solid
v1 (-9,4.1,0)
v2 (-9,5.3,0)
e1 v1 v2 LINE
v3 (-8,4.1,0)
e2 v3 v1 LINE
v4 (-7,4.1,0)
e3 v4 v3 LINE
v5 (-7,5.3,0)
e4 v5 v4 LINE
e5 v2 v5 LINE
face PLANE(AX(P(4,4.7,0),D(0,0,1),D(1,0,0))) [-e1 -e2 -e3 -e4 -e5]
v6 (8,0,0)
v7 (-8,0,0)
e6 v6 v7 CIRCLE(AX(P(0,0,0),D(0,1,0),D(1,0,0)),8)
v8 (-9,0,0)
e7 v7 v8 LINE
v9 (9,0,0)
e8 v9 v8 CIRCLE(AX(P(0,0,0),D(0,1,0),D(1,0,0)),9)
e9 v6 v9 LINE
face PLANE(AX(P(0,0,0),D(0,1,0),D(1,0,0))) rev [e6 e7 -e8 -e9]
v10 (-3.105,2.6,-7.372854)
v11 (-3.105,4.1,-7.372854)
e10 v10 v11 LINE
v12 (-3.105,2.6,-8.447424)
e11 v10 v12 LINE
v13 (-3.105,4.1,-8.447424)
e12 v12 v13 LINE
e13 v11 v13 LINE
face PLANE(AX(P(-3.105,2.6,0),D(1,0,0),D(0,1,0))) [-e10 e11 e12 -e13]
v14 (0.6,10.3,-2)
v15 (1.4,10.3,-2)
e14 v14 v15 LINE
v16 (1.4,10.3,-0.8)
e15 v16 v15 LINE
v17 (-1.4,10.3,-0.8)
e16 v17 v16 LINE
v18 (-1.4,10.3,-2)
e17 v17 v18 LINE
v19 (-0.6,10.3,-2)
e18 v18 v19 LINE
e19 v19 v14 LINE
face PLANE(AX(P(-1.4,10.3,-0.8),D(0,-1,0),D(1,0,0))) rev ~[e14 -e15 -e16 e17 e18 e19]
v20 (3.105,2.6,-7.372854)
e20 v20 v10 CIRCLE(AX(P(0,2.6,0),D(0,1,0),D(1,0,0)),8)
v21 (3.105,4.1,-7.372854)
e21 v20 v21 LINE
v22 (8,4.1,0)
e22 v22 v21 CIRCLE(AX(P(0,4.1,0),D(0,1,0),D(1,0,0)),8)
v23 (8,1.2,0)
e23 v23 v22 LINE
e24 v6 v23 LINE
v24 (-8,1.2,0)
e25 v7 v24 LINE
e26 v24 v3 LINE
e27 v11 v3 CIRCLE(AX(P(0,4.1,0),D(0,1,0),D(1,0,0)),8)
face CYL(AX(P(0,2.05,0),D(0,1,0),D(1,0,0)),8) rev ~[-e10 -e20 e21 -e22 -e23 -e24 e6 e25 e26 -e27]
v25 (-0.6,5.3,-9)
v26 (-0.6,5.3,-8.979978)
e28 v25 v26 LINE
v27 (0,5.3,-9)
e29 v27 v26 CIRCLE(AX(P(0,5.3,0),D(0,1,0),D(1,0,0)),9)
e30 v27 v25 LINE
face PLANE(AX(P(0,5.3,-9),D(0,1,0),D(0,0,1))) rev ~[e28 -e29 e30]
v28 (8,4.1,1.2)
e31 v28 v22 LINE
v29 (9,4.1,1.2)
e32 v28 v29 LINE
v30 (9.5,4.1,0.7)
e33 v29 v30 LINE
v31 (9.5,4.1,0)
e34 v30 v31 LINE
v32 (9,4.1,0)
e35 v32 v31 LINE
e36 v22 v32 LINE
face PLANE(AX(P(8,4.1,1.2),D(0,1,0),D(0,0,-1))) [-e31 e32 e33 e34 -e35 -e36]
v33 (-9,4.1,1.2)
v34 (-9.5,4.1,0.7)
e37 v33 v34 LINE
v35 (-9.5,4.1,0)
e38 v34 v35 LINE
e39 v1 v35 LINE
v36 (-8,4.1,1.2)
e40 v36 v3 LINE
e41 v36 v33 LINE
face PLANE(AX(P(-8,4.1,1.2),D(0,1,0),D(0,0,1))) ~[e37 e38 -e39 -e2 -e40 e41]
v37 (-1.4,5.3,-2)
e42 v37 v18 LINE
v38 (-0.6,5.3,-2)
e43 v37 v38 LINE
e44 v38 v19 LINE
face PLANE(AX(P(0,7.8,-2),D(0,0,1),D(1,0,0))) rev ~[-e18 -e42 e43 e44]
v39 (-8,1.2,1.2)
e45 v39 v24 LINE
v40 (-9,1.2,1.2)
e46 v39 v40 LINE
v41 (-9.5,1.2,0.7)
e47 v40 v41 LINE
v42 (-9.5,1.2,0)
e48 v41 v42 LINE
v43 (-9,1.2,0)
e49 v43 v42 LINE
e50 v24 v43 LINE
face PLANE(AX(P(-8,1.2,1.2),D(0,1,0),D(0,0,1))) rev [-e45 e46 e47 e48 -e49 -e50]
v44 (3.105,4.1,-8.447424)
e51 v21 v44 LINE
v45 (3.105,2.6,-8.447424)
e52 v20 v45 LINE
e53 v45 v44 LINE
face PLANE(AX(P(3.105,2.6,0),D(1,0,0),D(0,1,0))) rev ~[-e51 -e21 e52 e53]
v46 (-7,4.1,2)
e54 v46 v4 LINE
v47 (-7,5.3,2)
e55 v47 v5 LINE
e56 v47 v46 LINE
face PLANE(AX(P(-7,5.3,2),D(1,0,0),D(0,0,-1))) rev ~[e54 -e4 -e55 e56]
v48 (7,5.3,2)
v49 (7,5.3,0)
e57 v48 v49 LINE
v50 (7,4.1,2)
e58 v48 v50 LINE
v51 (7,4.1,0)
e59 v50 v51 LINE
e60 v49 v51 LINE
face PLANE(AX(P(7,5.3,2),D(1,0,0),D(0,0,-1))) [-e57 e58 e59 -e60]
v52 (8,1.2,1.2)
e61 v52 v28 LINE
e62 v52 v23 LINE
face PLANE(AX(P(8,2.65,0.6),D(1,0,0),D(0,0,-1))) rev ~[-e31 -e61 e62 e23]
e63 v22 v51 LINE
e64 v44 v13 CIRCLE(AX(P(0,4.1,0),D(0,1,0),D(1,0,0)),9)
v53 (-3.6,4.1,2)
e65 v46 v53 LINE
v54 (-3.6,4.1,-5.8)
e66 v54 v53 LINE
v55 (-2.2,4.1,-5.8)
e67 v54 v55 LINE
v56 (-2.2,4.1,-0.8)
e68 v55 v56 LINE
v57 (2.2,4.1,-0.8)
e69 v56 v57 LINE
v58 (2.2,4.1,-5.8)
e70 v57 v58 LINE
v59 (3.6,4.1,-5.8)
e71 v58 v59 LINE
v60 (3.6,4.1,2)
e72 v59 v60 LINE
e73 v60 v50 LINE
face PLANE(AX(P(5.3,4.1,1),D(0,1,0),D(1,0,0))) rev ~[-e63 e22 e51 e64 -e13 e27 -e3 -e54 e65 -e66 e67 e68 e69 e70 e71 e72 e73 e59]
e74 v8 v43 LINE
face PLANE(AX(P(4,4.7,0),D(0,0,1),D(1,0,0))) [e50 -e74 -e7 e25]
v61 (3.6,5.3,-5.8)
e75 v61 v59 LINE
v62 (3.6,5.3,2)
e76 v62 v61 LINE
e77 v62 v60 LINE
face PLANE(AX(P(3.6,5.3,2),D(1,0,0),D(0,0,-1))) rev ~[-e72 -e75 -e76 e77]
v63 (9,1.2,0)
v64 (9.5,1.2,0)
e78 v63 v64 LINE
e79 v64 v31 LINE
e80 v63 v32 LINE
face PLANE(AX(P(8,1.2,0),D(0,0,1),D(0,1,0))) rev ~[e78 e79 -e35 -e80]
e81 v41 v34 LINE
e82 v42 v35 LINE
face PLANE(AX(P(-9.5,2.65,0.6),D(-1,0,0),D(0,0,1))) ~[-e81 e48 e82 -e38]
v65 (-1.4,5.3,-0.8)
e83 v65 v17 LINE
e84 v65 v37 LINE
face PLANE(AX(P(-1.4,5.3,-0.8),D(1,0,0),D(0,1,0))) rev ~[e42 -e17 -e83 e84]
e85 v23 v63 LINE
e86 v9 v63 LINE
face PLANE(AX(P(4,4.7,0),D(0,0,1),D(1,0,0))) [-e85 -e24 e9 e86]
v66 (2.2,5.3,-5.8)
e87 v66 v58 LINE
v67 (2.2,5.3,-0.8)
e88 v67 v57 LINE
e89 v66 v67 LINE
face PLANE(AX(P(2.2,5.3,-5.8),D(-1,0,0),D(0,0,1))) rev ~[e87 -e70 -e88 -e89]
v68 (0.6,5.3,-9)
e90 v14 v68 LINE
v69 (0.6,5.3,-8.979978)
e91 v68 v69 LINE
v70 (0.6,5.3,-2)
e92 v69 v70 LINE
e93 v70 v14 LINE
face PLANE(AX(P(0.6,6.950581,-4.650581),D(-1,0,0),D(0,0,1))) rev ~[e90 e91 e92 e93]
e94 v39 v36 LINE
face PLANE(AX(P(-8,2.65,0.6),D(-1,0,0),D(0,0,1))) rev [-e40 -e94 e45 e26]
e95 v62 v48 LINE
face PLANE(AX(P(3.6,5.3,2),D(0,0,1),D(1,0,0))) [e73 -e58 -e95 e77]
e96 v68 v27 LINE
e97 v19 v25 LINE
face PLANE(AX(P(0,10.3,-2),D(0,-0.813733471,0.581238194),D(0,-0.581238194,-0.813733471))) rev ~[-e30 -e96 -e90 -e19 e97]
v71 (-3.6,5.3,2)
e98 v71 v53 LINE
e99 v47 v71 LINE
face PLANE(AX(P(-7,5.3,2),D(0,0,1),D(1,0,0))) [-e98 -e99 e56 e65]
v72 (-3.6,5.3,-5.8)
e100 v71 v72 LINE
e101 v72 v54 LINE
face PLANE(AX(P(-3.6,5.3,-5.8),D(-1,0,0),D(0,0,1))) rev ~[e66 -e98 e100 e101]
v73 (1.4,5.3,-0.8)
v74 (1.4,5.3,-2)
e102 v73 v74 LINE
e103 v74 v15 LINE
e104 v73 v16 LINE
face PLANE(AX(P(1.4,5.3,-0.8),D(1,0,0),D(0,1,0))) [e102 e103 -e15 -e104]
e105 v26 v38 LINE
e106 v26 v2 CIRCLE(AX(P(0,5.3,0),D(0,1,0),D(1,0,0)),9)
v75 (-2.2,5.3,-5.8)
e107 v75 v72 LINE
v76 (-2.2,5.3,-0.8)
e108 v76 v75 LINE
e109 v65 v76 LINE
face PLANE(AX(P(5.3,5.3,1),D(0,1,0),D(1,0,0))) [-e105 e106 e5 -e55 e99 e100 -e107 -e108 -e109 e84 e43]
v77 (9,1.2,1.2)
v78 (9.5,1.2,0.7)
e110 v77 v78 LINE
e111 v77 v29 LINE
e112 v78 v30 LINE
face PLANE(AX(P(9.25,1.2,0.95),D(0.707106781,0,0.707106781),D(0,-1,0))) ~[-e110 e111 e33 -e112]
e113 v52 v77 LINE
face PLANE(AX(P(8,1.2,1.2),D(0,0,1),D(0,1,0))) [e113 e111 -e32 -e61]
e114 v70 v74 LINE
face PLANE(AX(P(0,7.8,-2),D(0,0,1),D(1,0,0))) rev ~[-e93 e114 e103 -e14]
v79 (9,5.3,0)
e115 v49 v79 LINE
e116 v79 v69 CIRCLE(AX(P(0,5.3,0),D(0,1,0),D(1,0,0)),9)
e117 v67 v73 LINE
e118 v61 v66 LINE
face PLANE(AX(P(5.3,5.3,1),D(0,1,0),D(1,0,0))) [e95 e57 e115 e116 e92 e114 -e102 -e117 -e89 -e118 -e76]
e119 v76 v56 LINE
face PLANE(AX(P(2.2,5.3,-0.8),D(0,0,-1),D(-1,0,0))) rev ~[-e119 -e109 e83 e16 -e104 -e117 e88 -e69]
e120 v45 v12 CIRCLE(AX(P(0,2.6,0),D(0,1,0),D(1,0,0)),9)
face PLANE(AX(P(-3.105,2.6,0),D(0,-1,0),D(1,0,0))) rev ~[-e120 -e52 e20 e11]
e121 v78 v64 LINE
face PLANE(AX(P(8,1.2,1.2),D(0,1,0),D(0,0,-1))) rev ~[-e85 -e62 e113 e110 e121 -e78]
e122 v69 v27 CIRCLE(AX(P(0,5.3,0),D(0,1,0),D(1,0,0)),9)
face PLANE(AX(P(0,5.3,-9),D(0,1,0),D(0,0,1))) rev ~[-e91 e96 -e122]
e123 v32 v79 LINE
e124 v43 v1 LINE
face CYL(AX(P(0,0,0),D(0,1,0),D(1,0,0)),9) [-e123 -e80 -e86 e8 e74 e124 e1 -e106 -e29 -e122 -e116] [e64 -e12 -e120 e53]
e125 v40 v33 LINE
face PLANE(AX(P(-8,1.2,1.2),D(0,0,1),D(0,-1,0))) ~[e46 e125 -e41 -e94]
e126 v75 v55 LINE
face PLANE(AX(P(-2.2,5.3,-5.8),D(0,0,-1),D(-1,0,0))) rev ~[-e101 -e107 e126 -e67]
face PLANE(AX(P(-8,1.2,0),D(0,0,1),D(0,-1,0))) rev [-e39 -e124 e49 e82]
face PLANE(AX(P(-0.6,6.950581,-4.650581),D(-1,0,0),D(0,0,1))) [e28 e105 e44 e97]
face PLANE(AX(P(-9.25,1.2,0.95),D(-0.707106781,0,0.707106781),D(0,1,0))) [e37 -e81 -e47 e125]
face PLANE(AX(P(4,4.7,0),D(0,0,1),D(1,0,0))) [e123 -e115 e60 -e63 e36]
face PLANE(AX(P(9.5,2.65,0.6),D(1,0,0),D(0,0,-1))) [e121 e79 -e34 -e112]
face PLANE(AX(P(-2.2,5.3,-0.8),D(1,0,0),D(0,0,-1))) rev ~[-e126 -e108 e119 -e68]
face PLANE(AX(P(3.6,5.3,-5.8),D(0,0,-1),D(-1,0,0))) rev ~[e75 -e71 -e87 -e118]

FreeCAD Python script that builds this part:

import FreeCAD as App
import Part
import Sketcher
from FreeCAD import Vector


def edges_at(feature, points):
    """Names of the edges that pass closest to the given points."""
    edges = feature.Shape.Edges
    near = lambda p: min(range(len(edges)), key=lambda i: edges[i].distToShape(Part.Vertex(*p))[0])
    return sorted({f"Edge{near(p) + 1}" for p in points})

doc = App.newDocument("Part")
body = doc.addObject("PartDesign::Body", "Body")

sketch1 = body.newObject("Sketcher::SketchObject", "Sketch")
sketch1.AttachmentSupport = (doc.getObject("XY_Plane"), [""])
sketch1.MapMode = "FlatFace"
sketch1.addGeometry([
    Part.LineSegment(Vector(0, 5.3, 0), Vector(0, 4.1, 0)),
    Part.LineSegment(Vector(0, 4.1, 0), Vector(8, 4.1, 0)),
    Part.LineSegment(Vector(8, 4.1, 0), Vector(8, 0, 0)),
    Part.LineSegment(Vector(8, 0, 0), Vector(9, 0, 0)),
    Part.LineSegment(Vector(9, 0, 0), Vector(9, 5.3, 0)),
    Part.LineSegment(Vector(9, 5.3, 0), Vector(0, 5.3, 0)),
], False)
sketch1.addConstraint([
    Sketcher.Constraint("Coincident", 0, 2, 1, 1),
    Sketcher.Constraint("Coincident", 1, 2, 2, 1),
    Sketcher.Constraint("Coincident", 2, 2, 3, 1),
    Sketcher.Constraint("Coincident", 3, 2, 4, 1),
    Sketcher.Constraint("Coincident", 4, 2, 5, 1),
    Sketcher.Constraint("Coincident", 5, 2, 0, 1),
    Sketcher.Constraint("Vertical", 0),
    Sketcher.Constraint("Horizontal", 1),
    Sketcher.Constraint("Vertical", 2),
    Sketcher.Constraint("Horizontal", 3),
    Sketcher.Constraint("Vertical", 4),
    Sketcher.Constraint("Horizontal", 5),
    Sketcher.Constraint("PointOnObject", 0, 2, -2),
    Sketcher.Constraint("PointOnObject", 2, 2, -1),
    Sketcher.Constraint("DistanceX", 1, 1, 1, 2, 8.0),
    Sketcher.Constraint("DistanceX", 3, 1, 3, 2, 1.0),
    Sketcher.Constraint("DistanceY", 0, 2, 0, 1, 1.2),
    Sketcher.Constraint("DistanceY", 2, 2, 2, 1, 4.1),
])
revolution = body.newObject("PartDesign::Revolution", "Revolution")
revolution.Profile = sketch1
revolution.ReferenceAxis = (sketch1, ["V_Axis"])
revolution.Angle = 180

sketch2 = body.newObject("Sketcher::SketchObject", "Sketch001")
sketch2.AttachmentSupport = (doc.getObject("XY_Plane"), [""])
sketch2.MapMode = "FlatFace"
sketch2.addGeometry([
    Part.LineSegment(Vector(-3.1, 4.1, 0), Vector(-3.1, 2.6, 0)),
    Part.LineSegment(Vector(-3.1, 2.6, 0), Vector(3.1, 2.6, 0)),
    Part.LineSegment(Vector(3.1, 2.6, 0), Vector(3.1, 4.1, 0)),
    Part.LineSegment(Vector(3.1, 4.1, 0), Vector(-3.1, 4.1, 0)),
], False)
sketch2.addConstraint([
    Sketcher.Constraint("Coincident", 0, 2, 1, 1),
    Sketcher.Constraint("Coincident", 1, 2, 2, 1),
    Sketcher.Constraint("Coincident", 2, 2, 3, 1),
    Sketcher.Constraint("Coincident", 3, 2, 0, 1),
    Sketcher.Constraint("Vertical", 0),
    Sketcher.Constraint("Horizontal", 1),
    Sketcher.Constraint("Vertical", 2),
    Sketcher.Constraint("Horizontal", 3),
    Sketcher.Constraint("DistanceY", 0, 2, 0, 1, 1.5),
    Sketcher.Constraint("DistanceX", 1, 1, 1, 2, 6.21),
    Sketcher.Constraint("DistanceY", -1, 1, 0, 2, 2.6),
    Sketcher.Constraint("DistanceX", 0, 2, -1, 1, 3.105),
])
pocket1 = body.newObject("PartDesign::Pocket", "Pocket")
pocket1.Profile = sketch2
pocket1.Type = "ThroughAll"

sketch3 = body.newObject("Sketcher::SketchObject", "Sketch002")
sketch3.AttachmentSupport = (doc.getObject("XZ_Plane"), [""])
sketch3.MapMode = "FlatFace"
sketch3.AttachmentOffset = App.Placement(Vector(0, 0, -5.3), App.Rotation())
sketch3.addGeometry([
    Part.LineSegment(Vector(-2.2, -5.8, 0), Vector(-3.6, -5.8, 0)),
    Part.LineSegment(Vector(-3.6, -5.8, 0), Vector(-3.6, 0, 0)),
    Part.LineSegment(Vector(-3.6, 0, 0), Vector(3.6, 0, 0)),
    Part.LineSegment(Vector(3.6, 0, 0), Vector(3.6, -5.8, 0)),
    Part.LineSegment(Vector(3.6, -5.8, 0), Vector(2.2, -5.8, 0)),
    Part.LineSegment(Vector(2.2, -5.8, 0), Vector(2.2, -0.8, 0)),
    Part.LineSegment(Vector(2.2, -0.8, 0), Vector(-2.2, -0.8, 0)),
    Part.LineSegment(Vector(-2.2, -0.8, 0), Vector(-2.2, -5.8, 0)),
], False)
sketch3.addConstraint([
    Sketcher.Constraint("Coincident", 0, 2, 1, 1),
    Sketcher.Constraint("Coincident", 1, 2, 2, 1),
    Sketcher.Constraint("Coincident", 2, 2, 3, 1),
    Sketcher.Constraint("Coincident", 3, 2, 4, 1),
    Sketcher.Constraint("Coincident", 4, 2, 5, 1),
    Sketcher.Constraint("Coincident", 5, 2, 6, 1),
    Sketcher.Constraint("Coincident", 6, 2, 7, 1),
    Sketcher.Constraint("Coincident", 7, 2, 0, 1),
    Sketcher.Constraint("Horizontal", 0),
    Sketcher.Constraint("Vertical", 1),
    Sketcher.Constraint("Horizontal", 2),
    Sketcher.Constraint("Vertical", 3),
    Sketcher.Constraint("Horizontal", 4),
    Sketcher.Constraint("Vertical", 5),
    Sketcher.Constraint("Horizontal", 6),
    Sketcher.Constraint("Vertical", 7),
    Sketcher.Constraint("Symmetric", 1, 2, 2, 2, -1, 1),
    Sketcher.Constraint("Symmetric", 4, 2, 7, 2, -2),
    Sketcher.Constraint("DistanceY", 5, 1, 5, 2, 5.0),
    Sketcher.Constraint("DistanceX", 0, 2, 0, 1, 1.4),
    Sketcher.Constraint("DistanceX", 2, 1, 2, 2, 7.2),
    Sketcher.Constraint("DistanceY", 1, 1, 1, 2, 5.8),
])
pocket2 = body.newObject("PartDesign::Pocket", "Pocket001")
pocket2.Profile = sketch3
pocket2.Type = "ThroughAll"
pocket2.Reversed = True

sketch4 = body.newObject("Sketcher::SketchObject", "Sketch003")
sketch4.AttachmentSupport = (doc.getObject("XZ_Plane"), [""])
sketch4.MapMode = "FlatFace"
sketch4.AttachmentOffset = App.Placement(Vector(0, 0, -5.3), App.Rotation())
sketch4.addGeometry([
    Part.LineSegment(Vector(3.6, 0, 0), Vector(3.6, 2, 0)),
    Part.LineSegment(Vector(3.6, 2, 0), Vector(7, 2, 0)),
    Part.LineSegment(Vector(7, 2, 0), Vector(7, 0, 0)),
    Part.LineSegment(Vector(7, 0, 0), Vector(3.6, 0, 0)),
    Part.LineSegment(Vector(-7, 0, 0), Vector(-7, 2, 0)),
    Part.LineSegment(Vector(-7, 2, 0), Vector(-3.6, 2, 0)),
    Part.LineSegment(Vector(-3.6, 2, 0), Vector(-3.6, 0, 0)),
    Part.LineSegment(Vector(-3.6, 0, 0), Vector(-7, 0, 0)),
], False)
sketch4.addConstraint([
    Sketcher.Constraint("Coincident", 0, 2, 1, 1),
    Sketcher.Constraint("Coincident", 1, 2, 2, 1),
    Sketcher.Constraint("Coincident", 2, 2, 3, 1),
    Sketcher.Constraint("Coincident", 3, 2, 0, 1),
    Sketcher.Constraint("Coincident", 4, 2, 5, 1),
    Sketcher.Constraint("Coincident", 5, 2, 6, 1),
    Sketcher.Constraint("Coincident", 6, 2, 7, 1),
    Sketcher.Constraint("Coincident", 7, 2, 4, 1),
    Sketcher.Constraint("Vertical", 0),
    Sketcher.Constraint("Horizontal", 1),
    Sketcher.Constraint("Vertical", 2),
    Sketcher.Constraint("Horizontal", 3),
    Sketcher.Constraint("Vertical", 4),
    Sketcher.Constraint("Horizontal", 5),
    Sketcher.Constraint("Vertical", 6),
    Sketcher.Constraint("Horizontal", 7),
    Sketcher.Constraint("Symmetric", 3, 2, 6, 2, -1, 1),
    Sketcher.Constraint("Symmetric", 1, 2, 4, 2, -2),
    Sketcher.Constraint("PointOnObject", 2, 2, -1),
    Sketcher.Constraint("DistanceY", 0, 1, 0, 2, 2.0),
    Sketcher.Constraint("DistanceX", 1, 1, 1, 2, 3.4),
    Sketcher.Constraint("DistanceX", -1, 1, 1, 2, 7.0),
])
pad1 = body.newObject("PartDesign::Pad", "Pad")
pad1.Profile = sketch4
pad1.Length = 1.2

sketch5 = body.newObject("Sketcher::SketchObject", "Sketch004")
sketch5.AttachmentSupport = (doc.getObject("YZ_Plane"), [""])
sketch5.MapMode = "FlatFace"
sketch5.AttachmentOffset = App.Placement(Vector(0, 0, 8), App.Rotation())
sketch5.addGeometry([
    Part.LineSegment(Vector(4.1, 1.2, 0), Vector(1.2, 1.2, 0)),
    Part.LineSegment(Vector(1.2, 1.2, 0), Vector(1.2, 0, 0)),
    Part.LineSegment(Vector(1.2, 0, 0), Vector(4.1, 0, 0)),
    Part.LineSegment(Vector(4.1, 0, 0), Vector(4.1, 1.2, 0)),
], False)
sketch5.addConstraint([
    Sketcher.Constraint("Coincident", 0, 2, 1, 1),
    Sketcher.Constraint("Coincident", 1, 2, 2, 1),
    Sketcher.Constraint("Coincident", 2, 2, 3, 1),
    Sketcher.Constraint("Coincident", 3, 2, 0, 1),
    Sketcher.Constraint("Horizontal", 0),
    Sketcher.Constraint("Vertical", 1),
    Sketcher.Constraint("Horizontal", 2),
    Sketcher.Constraint("Vertical", 3),
    Sketcher.Constraint("PointOnObject", 1, 2, -1),
    Sketcher.Constraint("DistanceX", 0, 2, 0, 1, 2.9),
    Sketcher.Constraint("DistanceY", 1, 2, 1, 1, 1.2),
    Sketcher.Constraint("DistanceX", -1, 1, 0, 2, 1.2),
])
pad2 = body.newObject("PartDesign::Pad", "Pad001")
pad2.Profile = sketch5
pad2.Length = 1.5
doc.recompute()

chamfer = body.newObject("PartDesign::Chamfer", "Chamfer")
chamfer.Base = (pad2, edges_at(pad2, [(9.5, 2.65, 1.2)]))
chamfer.Size = 0.5
doc.recompute()

mirrored = body.newObject("PartDesign::Mirrored", "Mirrored")
mirrored.Originals = [pad2]
mirrored.MirrorPlane = (doc.getObject("YZ_Plane"), [""])
body.Tip = mirrored
doc.recompute()

chamfer2 = body.newObject("PartDesign::Chamfer", "Chamfer001")
chamfer2.Base = (mirrored, edges_at(mirrored, [(-9.5, 2.65, 1.2)]))
chamfer2.Size = 0.5

sketch6 = body.newObject("Sketcher::SketchObject", "Sketch005")
sketch6.AttachmentSupport = (doc.getObject("XY_Plane"), [""])
sketch6.MapMode = "FlatFace"
sketch6.AttachmentOffset = App.Placement(Vector(0, 0, -0.8), App.Rotation())
sketch6.addGeometry([
    Part.LineSegment(Vector(-1.4, 10.3, 0), Vector(-1.4, 5.3, 0)),
    Part.LineSegment(Vector(-1.4, 5.3, 0), Vector(1.4, 5.3, 0)),
    Part.LineSegment(Vector(1.4, 5.3, 0), Vector(1.4, 10.3, 0)),
    Part.LineSegment(Vector(1.4, 10.3, 0), Vector(-1.4, 10.3, 0)),
], False)
sketch6.addConstraint([
    Sketcher.Constraint("Coincident", 0, 2, 1, 1),
    Sketcher.Constraint("Coincident", 1, 2, 2, 1),
    Sketcher.Constraint("Coincident", 2, 2, 3, 1),
    Sketcher.Constraint("Coincident", 3, 2, 0, 1),
    Sketcher.Constraint("Vertical", 0),
    Sketcher.Constraint("Horizontal", 1),
    Sketcher.Constraint("Vertical", 2),
    Sketcher.Constraint("Horizontal", 3),
    Sketcher.Constraint("DistanceY", 0, 2, 0, 1, 5.0),
    Sketcher.Constraint("DistanceX", 1, 1, 1, 2, 2.8),
    Sketcher.Constraint("DistanceX", 0, 2, -1, 1, 1.4),
    Sketcher.Constraint("DistanceY", -1, 1, 0, 2, 5.3),
])
pad3 = body.newObject("PartDesign::Pad", "Pad002")
pad3.Profile = sketch6
pad3.Length = 1.2
pad3.Reversed = True

sketch7 = body.newObject("Sketcher::SketchObject", "Sketch006")
sketch7.AttachmentSupport = (doc.getObject("YZ_Plane"), [""])
sketch7.MapMode = "FlatFace"
sketch7.addGeometry([
    Part.LineSegment(Vector(5, -9, 0), Vector(10, -2, 0)),
    Part.LineSegment(Vector(10, -2, 0), Vector(5, -2, 0)),
    Part.LineSegment(Vector(5, -2, 0), Vector(5, -9, 0)),
], False)
sketch7.addConstraint([
    Sketcher.Constraint("Coincident", 0, 2, 1, 1),
    Sketcher.Constraint("Coincident", 1, 2, 2, 1),
    Sketcher.Constraint("Coincident", 2, 2, 0, 1),
    Sketcher.Constraint("Horizontal", 1),
    Sketcher.Constraint("Vertical", 2),
    Sketcher.Constraint("DistanceX", 1, 2, 1, 1, 5.0),
    Sketcher.Constraint("DistanceY", 2, 2, 2, 1, 7.0),
    Sketcher.Constraint("DistanceY", 0, 2, -1, 1, 2.0),
    Sketcher.Constraint("DistanceX", -1, 1, 0, 2, 10.3),
])
pad4 = body.newObject("PartDesign::Pad", "Pad003")
pad4.Profile = sketch7
pad4.Length = 1.2
pad4.Midplane = True

doc.recompute()
